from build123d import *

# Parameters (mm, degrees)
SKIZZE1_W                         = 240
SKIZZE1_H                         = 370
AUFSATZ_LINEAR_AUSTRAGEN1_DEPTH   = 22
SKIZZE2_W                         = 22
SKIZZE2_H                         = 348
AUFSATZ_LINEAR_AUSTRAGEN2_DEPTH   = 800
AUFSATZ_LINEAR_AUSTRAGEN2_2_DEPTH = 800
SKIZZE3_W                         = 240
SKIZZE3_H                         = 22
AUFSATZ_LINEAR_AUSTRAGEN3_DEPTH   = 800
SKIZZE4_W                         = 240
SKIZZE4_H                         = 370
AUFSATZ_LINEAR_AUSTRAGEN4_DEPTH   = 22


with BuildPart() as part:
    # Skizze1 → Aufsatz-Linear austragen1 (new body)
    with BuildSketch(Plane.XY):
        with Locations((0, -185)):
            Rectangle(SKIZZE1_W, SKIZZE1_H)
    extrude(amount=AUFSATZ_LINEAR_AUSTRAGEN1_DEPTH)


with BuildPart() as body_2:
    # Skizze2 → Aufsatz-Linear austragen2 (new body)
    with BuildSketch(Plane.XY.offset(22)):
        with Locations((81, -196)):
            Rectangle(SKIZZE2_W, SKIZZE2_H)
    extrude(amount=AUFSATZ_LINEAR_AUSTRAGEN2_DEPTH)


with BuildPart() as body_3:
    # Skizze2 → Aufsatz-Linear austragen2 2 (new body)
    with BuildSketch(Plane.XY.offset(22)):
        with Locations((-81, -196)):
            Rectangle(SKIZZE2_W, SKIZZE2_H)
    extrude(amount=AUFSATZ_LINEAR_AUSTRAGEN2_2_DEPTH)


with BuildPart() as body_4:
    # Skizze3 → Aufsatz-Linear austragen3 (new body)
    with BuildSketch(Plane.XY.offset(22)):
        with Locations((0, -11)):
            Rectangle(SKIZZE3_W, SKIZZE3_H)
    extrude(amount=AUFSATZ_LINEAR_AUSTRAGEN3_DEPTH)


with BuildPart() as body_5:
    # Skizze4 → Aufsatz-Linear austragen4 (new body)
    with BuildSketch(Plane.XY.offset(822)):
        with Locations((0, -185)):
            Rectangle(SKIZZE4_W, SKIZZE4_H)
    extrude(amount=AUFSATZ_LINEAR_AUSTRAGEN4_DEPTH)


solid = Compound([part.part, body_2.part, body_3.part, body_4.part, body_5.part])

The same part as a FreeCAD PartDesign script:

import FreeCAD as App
import Part
import Sketcher

V = App.Vector

doc = App.newDocument("Part")
params = doc.addObject("Spreadsheet::Sheet", "Params")
for row, (alias, value) in enumerate([
    ("sketch1_width", "240 mm"),
    ("sketch1_height", "370 mm"),
    ("pad1_length", "22 mm"),
    ("sketch2_width", "22 mm"),
    ("sketch2_height", "348 mm"),
    ("pad2_length", "800 mm"),
    ("sketch3_width", "22 mm"),
    ("sketch3_height", "348 mm"),
    ("pad3_length", "800 mm"),
    ("sketch4_width", "240 mm"),
    ("sketch4_height", "22 mm"),
    ("pad4_length", "800 mm"),
    ("sketch5_width", "240 mm"),
    ("sketch5_height", "370 mm"),
    ("pad5_length", "22 mm"),
], start=1):
    params.set(f"A{row}", alias)
    params.set(f"B{row}", "=" + value)
    params.setAlias(f"B{row}", alias)

body = doc.addObject("PartDesign::Body", "Body")

sketch1 = doc.addObject("Sketcher::SketchObject", "Sketch")
body.addObject(sketch1)
sketch1.AttachmentSupport = (doc.XY_Plane, [""])
sketch1.MapMode = "FlatFace"
sketch1.addGeometry(Part.LineSegment(V(-120, 0, 0), V(-120, -370, 0)), False)
sketch1.addGeometry(Part.LineSegment(V(-120, -370, 0), V(120, -370, 0)), False)
sketch1.addGeometry(Part.LineSegment(V(120, -370, 0), V(120, 0, 0)), False)
sketch1.addGeometry(Part.LineSegment(V(120, 0, 0), V(-120, 0, 0)), False)
sketch1.addConstraint(Sketcher.Constraint("Coincident", 0, 2, 1, 1))
sketch1.addConstraint(Sketcher.Constraint("Coincident", 1, 2, 2, 1))
sketch1.addConstraint(Sketcher.Constraint("Coincident", 2, 2, 3, 1))
sketch1.addConstraint(Sketcher.Constraint("Coincident", 3, 2, 0, 1))
sketch1.addConstraint(Sketcher.Constraint("Vertical", 0))
sketch1.addConstraint(Sketcher.Constraint("Horizontal", 1))
sketch1.addConstraint(Sketcher.Constraint("Vertical", 2))
sketch1.addConstraint(Sketcher.Constraint("Horizontal", 3))
sketch1.addConstraint(Sketcher.Constraint("Symmetric", 2, 2, 3, 2, -1, 1))
sketch1.addConstraint(Sketcher.Constraint("DistanceX", 1, 1, 1, 2, 240.0))
sketch1.addConstraint(Sketcher.Constraint("DistanceY", 0, 2, 0, 1, 370.0))
sketch1.setExpression("Constraints[9]", "Params.sketch1_width")
sketch1.setExpression("Constraints[10]", "Params.sketch1_height")
pad1 = doc.addObject("PartDesign::Pad", "Pad")
body.addObject(pad1)
pad1.Profile = sketch1
pad1.setExpression("Length", "Params.pad1_length")
body2 = doc.addObject("PartDesign::Body", "Body001")

sketch2 = doc.addObject("Sketcher::SketchObject", "Sketch001")
body2.addObject(sketch2)
sketch2.AttachmentSupport = (doc.getObject("XY_Plane001"), [""])
sketch2.MapMode = "FlatFace"
sketch2.AttachmentOffset = App.Placement(V(0, 0, 22), App.Rotation())
sketch2.addGeometry(Part.LineSegment(V(70, -22, 0), V(70, -370, 0)), False)
sketch2.addGeometry(Part.LineSegment(V(70, -370, 0), V(92, -370, 0)), False)
sketch2.addGeometry(Part.LineSegment(V(92, -370, 0), V(92, -22, 0)), False)
sketch2.addGeometry(Part.LineSegment(V(92, -22, 0), V(70, -22, 0)), False)
sketch2.addConstraint(Sketcher.Constraint("Coincident", 0, 2, 1, 1))
sketch2.addConstraint(Sketcher.Constraint("Coincident", 1, 2, 2, 1))
sketch2.addConstraint(Sketcher.Constraint("Coincident", 2, 2, 3, 1))
sketch2.addConstraint(Sketcher.Constraint("Coincident", 3, 2, 0, 1))
sketch2.addConstraint(Sketcher.Constraint("Vertical", 0))
sketch2.addConstraint(Sketcher.Constraint("Horizontal", 1))
sketch2.addConstraint(Sketcher.Constraint("Vertical", 2))
sketch2.addConstraint(Sketcher.Constraint("Horizontal", 3))
sketch2.addConstraint(Sketcher.Constraint("DistanceX", 1, 1, 1, 2, 22.0))
sketch2.addConstraint(Sketcher.Constraint("DistanceY", 0, 2, 0, 1, 348.0))
sketch2.addConstraint(Sketcher.Constraint("DistanceX", -1, 1, 0, 2, 70.0))
sketch2.addConstraint(Sketcher.Constraint("DistanceY", 0, 2, -1, 1, 370.0))
sketch2.setExpression("Constraints[8]", "Params.sketch2_width")
sketch2.setExpression("Constraints[9]", "Params.sketch2_height")
pad2 = doc.addObject("PartDesign::Pad", "Pad001")
body2.addObject(pad2)
pad2.Profile = sketch2
pad2.setExpression("Length", "Params.pad2_length")
body3 = doc.addObject("PartDesign::Body", "Body002")

sketch3 = doc.addObject("Sketcher::SketchObject", "Sketch002")
body3.addObject(sketch3)
sketch3.AttachmentSupport = (doc.getObject("XY_Plane002"), [""])
sketch3.MapMode = "FlatFace"
sketch3.AttachmentOffset = App.Placement(V(0, 0, 22), App.Rotation())
sketch3.addGeometry(Part.LineSegment(V(-92, -22, 0), V(-92, -370, 0)), False)
sketch3.addGeometry(Part.LineSegment(V(-92, -370, 0), V(-70, -370, 0)), False)
sketch3.addGeometry(Part.LineSegment(V(-70, -370, 0), V(-70, -22, 0)), False)
sketch3.addGeometry(Part.LineSegment(V(-70, -22, 0), V(-92, -22, 0)), False)
sketch3.addConstraint(Sketcher.Constraint("Coincident", 0, 2, 1, 1))
sketch3.addConstraint(Sketcher.Constraint("Coincident", 1, 2, 2, 1))
sketch3.addConstraint(Sketcher.Constraint("Coincident", 2, 2, 3, 1))
sketch3.addConstraint(Sketcher.Constraint("Coincident", 3, 2, 0, 1))
sketch3.addConstraint(Sketcher.Constraint("Vertical", 0))
sketch3.addConstraint(Sketcher.Constraint("Horizontal", 1))
sketch3.addConstraint(Sketcher.Constraint("Vertical", 2))
sketch3.addConstraint(Sketcher.Constraint("Horizontal", 3))
sketch3.addConstraint(Sketcher.Constraint("DistanceX", 1, 1, 1, 2, 22.0))
sketch3.addConstraint(Sketcher.Constraint("DistanceY", 0, 2, 0, 1, 348.0))
sketch3.addConstraint(Sketcher.Constraint("DistanceX", 0, 2, -1, 1, 92.0))
sketch3.addConstraint(Sketcher.Constraint("DistanceY", 0, 2, -1, 1, 370.0))
sketch3.setExpression("Constraints[8]", "Params.sketch3_width")
sketch3.setExpression("Constraints[9]", "Params.sketch3_height")
pad3 = doc.addObject("PartDesign::Pad", "Pad002")
body3.addObject(pad3)
pad3.Profile = sketch3
pad3.setExpression("Length", "Params.pad3_length")
body4 = doc.addObject("PartDesign::Body", "Body003")

sketch4 = doc.addObject("Sketcher::SketchObject", "Sketch003")
body4.addObject(sketch4)
sketch4.AttachmentSupport = (doc.getObject("XY_Plane003"), [""])
sketch4.MapMode = "FlatFace"
sketch4.AttachmentOffset = App.Placement(V(0, 0, 22), App.Rotation())
sketch4.addGeometry(Part.LineSegment(V(-120, 0, 0), V(-120, -22, 0)), False)
sketch4.addGeometry(Part.LineSegment(V(-120, -22, 0), V(120, -22, 0)), False)
sketch4.addGeometry(Part.LineSegment(V(120, -22, 0), V(120, 0, 0)), False)
sketch4.addGeometry(Part.LineSegment(V(120, 0, 0), V(-120, 0, 0)), False)
sketch4.addConstraint(Sketcher.Constraint("Coincident", 0, 2, 1, 1))
sketch4.addConstraint(Sketcher.Constraint("Coincident", 1, 2, 2, 1))
sketch4.addConstraint(Sketcher.Constraint("Coincident", 2, 2, 3, 1))
sketch4.addConstraint(Sketcher.Constraint("Coincident", 3, 2, 0, 1))
sketch4.addConstraint(Sketcher.Constraint("Vertical", 0))
sketch4.addConstraint(Sketcher.Constraint("Horizontal", 1))
sketch4.addConstraint(Sketcher.Constraint("Vertical", 2))
sketch4.addConstraint(Sketcher.Constraint("Horizontal", 3))
sketch4.addConstraint(Sketcher.Constraint("Symmetric", 2, 2, 3, 2, -1, 1))
sketch4.addConstraint(Sketcher.Constraint("DistanceX", 1, 1, 1, 2, 240.0))
sketch4.addConstraint(Sketcher.Constraint("DistanceY", 0, 2, 0, 1, 22.0))
sketch4.setExpression("Constraints[9]", "Params.sketch4_width")
sketch4.setExpression("Constraints[10]", "Params.sketch4_height")
pad4 = doc.addObject("PartDesign::Pad", "Pad003")
body4.addObject(pad4)
pad4.Profile = sketch4
pad4.setExpression("Length", "Params.pad4_length")
body5 = doc.addObject("PartDesign::Body", "Body004")

sketch5 = doc.addObject("Sketcher::SketchObject", "Sketch004")
body5.addObject(sketch5)
sketch5.AttachmentSupport = (doc.getObject("XY_Plane004"), [""])
sketch5.MapMode = "FlatFace"
sketch5.AttachmentOffset = App.Placement(V(0, 0, 822), App.Rotation())
sketch5.addGeometry(Part.LineSegment(V(-120, 0, 0), V(-120, -370, 0)), False)
sketch5.addGeometry(Part.LineSegment(V(-120, -370, 0), V(120, -370, 0)), False)
sketch5.addGeometry(Part.LineSegment(V(120, -370, 0), V(120, 0, 0)), False)
sketch5.addGeometry(Part.LineSegment(V(120, 0, 0), V(-120, 0, 0)), False)
sketch5.addConstraint(Sketcher.Constraint("Coincident", 0, 2, 1, 1))
sketch5.addConstraint(Sketcher.Constraint("Coincident", 1, 2, 2, 1))
sketch5.addConstraint(Sketcher.Constraint("Coincident", 2, 2, 3, 1))
sketch5.addConstraint(Sketcher.Constraint("Coincident", 3, 2, 0, 1))
sketch5.addConstraint(Sketcher.Constraint("Vertical", 0))
sketch5.addConstraint(Sketcher.Constraint("Horizontal", 1))
sketch5.addConstraint(Sketcher.Constraint("Vertical", 2))
sketch5.addConstraint(Sketcher.Constraint("Horizontal", 3))
sketch5.addConstraint(Sketcher.Constraint("Symmetric", 2, 2, 3, 2, -1, 1))
sketch5.addConstraint(Sketcher.Constraint("DistanceX", 1, 1, 1, 2, 240.0))
sketch5.addConstraint(Sketcher.Constraint("DistanceY", 0, 2, 0, 1, 370.0))
sketch5.setExpression("Constraints[9]", "Params.sketch5_width")
sketch5.setExpression("Constraints[10]", "Params.sketch5_height")
pad5 = doc.addObject("PartDesign::Pad", "Pad004")
body5.addObject(pad5)
pad5.Profile = sketch5
pad5.setExpression("Length", "Params.pad5_length")

doc.recompute()
